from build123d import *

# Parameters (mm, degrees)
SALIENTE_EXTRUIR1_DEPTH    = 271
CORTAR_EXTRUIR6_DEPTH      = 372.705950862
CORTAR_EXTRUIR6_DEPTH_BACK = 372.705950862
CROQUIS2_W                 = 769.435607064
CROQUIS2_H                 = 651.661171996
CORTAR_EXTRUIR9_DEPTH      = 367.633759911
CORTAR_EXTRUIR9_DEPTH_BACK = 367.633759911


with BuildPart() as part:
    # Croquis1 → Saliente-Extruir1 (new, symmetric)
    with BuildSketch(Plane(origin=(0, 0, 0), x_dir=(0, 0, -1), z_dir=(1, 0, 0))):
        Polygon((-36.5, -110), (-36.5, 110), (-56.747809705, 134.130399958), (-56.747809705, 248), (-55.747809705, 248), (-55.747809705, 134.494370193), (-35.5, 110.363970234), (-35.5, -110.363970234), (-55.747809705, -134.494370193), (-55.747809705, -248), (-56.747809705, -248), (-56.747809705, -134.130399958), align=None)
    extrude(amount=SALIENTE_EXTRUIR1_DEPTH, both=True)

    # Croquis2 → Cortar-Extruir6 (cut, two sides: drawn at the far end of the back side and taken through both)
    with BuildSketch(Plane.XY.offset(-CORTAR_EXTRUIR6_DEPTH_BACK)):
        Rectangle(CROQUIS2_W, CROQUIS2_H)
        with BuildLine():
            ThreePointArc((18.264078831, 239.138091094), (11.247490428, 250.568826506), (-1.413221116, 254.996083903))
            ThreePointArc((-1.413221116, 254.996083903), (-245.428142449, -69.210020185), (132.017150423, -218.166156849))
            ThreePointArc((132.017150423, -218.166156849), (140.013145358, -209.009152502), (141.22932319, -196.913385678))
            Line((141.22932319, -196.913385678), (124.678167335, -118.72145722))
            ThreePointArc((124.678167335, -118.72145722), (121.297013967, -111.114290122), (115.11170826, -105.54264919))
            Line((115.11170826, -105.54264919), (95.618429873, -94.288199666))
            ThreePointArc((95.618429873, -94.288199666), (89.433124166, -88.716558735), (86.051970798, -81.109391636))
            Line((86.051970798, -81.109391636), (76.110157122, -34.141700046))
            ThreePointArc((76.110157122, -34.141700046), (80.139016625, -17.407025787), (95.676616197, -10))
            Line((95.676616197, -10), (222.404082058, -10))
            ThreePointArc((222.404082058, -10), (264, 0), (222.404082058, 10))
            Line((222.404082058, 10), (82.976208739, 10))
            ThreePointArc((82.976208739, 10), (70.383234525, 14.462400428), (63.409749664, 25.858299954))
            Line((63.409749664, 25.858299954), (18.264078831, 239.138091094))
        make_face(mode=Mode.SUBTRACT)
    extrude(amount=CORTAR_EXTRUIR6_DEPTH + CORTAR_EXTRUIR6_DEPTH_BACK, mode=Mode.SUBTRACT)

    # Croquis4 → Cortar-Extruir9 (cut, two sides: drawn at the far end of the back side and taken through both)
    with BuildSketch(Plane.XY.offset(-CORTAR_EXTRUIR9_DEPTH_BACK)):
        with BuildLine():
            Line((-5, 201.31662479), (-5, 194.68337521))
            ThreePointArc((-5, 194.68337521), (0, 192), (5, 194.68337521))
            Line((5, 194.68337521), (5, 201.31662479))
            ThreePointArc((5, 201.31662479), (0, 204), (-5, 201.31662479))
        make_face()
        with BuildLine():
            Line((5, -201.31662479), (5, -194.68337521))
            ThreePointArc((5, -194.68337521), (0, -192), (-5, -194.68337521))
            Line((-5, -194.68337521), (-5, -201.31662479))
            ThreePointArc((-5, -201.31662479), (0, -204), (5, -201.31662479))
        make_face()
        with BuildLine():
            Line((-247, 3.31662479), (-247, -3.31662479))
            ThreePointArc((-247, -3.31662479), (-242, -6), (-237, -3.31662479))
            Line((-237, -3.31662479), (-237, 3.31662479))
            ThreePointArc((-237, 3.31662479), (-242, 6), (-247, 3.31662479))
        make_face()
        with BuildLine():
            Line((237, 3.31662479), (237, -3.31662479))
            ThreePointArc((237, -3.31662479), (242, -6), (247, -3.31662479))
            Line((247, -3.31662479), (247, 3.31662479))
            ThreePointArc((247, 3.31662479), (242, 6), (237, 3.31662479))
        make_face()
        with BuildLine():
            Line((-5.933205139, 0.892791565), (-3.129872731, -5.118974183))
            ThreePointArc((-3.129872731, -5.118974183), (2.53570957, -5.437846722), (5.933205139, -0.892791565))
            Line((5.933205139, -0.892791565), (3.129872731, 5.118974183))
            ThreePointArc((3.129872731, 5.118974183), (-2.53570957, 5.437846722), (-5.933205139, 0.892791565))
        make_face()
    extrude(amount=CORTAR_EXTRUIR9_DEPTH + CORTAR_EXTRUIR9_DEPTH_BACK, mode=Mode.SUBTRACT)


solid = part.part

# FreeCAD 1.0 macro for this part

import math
import FreeCAD as App
import Part
import Sketcher
Q = App.Units.Quantity

doc = App.newDocument("Part")
body = doc.addObject("PartDesign::Body", "Body")

sketch1 = body.newObject("Sketcher::SketchObject", "Sketch")
sketch1.AttachmentSupport = (doc.getObject("YZ_Plane"), [""])
sketch1.MapMode = "FlatFace"
sketch1.addGeometry(Part.LineSegment(App.Vector(110, 36.5, 0), App.Vector(-110, 36.5, 0)), False)
sketch1.addGeometry(Part.LineSegment(App.Vector(-110, 36.5, 0), App.Vector(-134.1304, 56.74781, 0)), False)
sketch1.addGeometry(Part.LineSegment(App.Vector(-134.1304, 56.74781, 0), App.Vector(-248, 56.74781, 0)), False)
sketch1.addGeometry(Part.LineSegment(App.Vector(-248, 56.74781, 0), App.Vector(-248, 55.74781, 0)), False)
sketch1.addGeometry(Part.LineSegment(App.Vector(-248, 55.74781, 0), App.Vector(-134.49437, 55.74781, 0)), False)
sketch1.addGeometry(Part.LineSegment(App.Vector(-134.49437, 55.74781, 0), App.Vector(-110.36397, 35.5, 0)), False)
sketch1.addGeometry(Part.LineSegment(App.Vector(-110.36397, 35.5, 0), App.Vector(110.36397, 35.5, 0)), False)
sketch1.addGeometry(Part.LineSegment(App.Vector(110.36397, 35.5, 0), App.Vector(134.49437, 55.74781, 0)), False)
sketch1.addGeometry(Part.LineSegment(App.Vector(134.49437, 55.74781, 0), App.Vector(248, 55.74781, 0)), False)
sketch1.addGeometry(Part.LineSegment(App.Vector(248, 55.74781, 0), App.Vector(248, 56.74781, 0)), False)
sketch1.addGeometry(Part.LineSegment(App.Vector(248, 56.74781, 0), App.Vector(134.1304, 56.74781, 0)), False)
sketch1.addGeometry(Part.LineSegment(App.Vector(134.1304, 56.74781, 0), App.Vector(110, 36.5, 0)), False)
sketch1.addConstraint(Sketcher.Constraint("Coincident", 0, 2, 1, 1))
sketch1.addConstraint(Sketcher.Constraint("Coincident", 1, 2, 2, 1))
sketch1.addConstraint(Sketcher.Constraint("Coincident", 2, 2, 3, 1))
sketch1.addConstraint(Sketcher.Constraint("Coincident", 3, 2, 4, 1))
sketch1.addConstraint(Sketcher.Constraint("Coincident", 4, 2, 5, 1))
sketch1.addConstraint(Sketcher.Constraint("Coincident", 5, 2, 6, 1))
sketch1.addConstraint(Sketcher.Constraint("Coincident", 6, 2, 7, 1))
sketch1.addConstraint(Sketcher.Constraint("Coincident", 7, 2, 8, 1))
sketch1.addConstraint(Sketcher.Constraint("Coincident", 8, 2, 9, 1))
sketch1.addConstraint(Sketcher.Constraint("Coincident", 9, 2, 10, 1))
sketch1.addConstraint(Sketcher.Constraint("Coincident", 10, 2, 11, 1))
sketch1.addConstraint(Sketcher.Constraint("Coincident", 11, 2, 0, 1))
sketch1.addConstraint(Sketcher.Constraint("Horizontal", 0))
sketch1.addConstraint(Sketcher.Constraint("Horizontal", 2))
sketch1.addConstraint(Sketcher.Constraint("Vertical", 3))
sketch1.addConstraint(Sketcher.Constraint("Horizontal", 4))
sketch1.addConstraint(Sketcher.Constraint("Horizontal", 6))
sketch1.addConstraint(Sketcher.Constraint("Horizontal", 8))
sketch1.addConstraint(Sketcher.Constraint("Vertical", 9))
sketch1.addConstraint(Sketcher.Constraint("Horizontal", 10))
sketch1.addConstraint(Sketcher.Constraint("Symmetric", 4, 2, 7, 2, -2))
sketch1.addConstraint(Sketcher.Constraint("Symmetric", 2, 2, 9, 2, -2))
sketch1.addConstraint(Sketcher.Constraint("Parallel", 1, 5))
sketch1.addConstraint(Sketcher.Constraint("Parallel", 7, 11))
sketch1.addConstraint(Sketcher.Constraint("Equal", 2, 10))
sketch1.addConstraint(Sketcher.Constraint("Equal", 1, 5))
sketch1.addConstraint(Sketcher.Constraint("Equal", 5, 7))
sketch1.addConstraint(Sketcher.Constraint("DistanceX", 0, 2, 0, 1, 220.0))
sketch1.addConstraint(Sketcher.Constraint("DistanceY", 3, 2, 3, 1, 1.0))
sketch1.addConstraint(Sketcher.Constraint("Angle", 1, Q("140 deg")))
sketch1.addConstraint(Sketcher.Constraint("DistanceX", 2, 2, -1, 1, 248.0))
sketch1.addConstraint(Sketcher.Constraint("Distance", 1, 31.5))
sketch1.addConstraint(Sketcher.Constraint("DistanceY", -1, 1, 0, 2, 36.5))
sketch1.addConstraint(Sketcher.Constraint("DistanceX", 4, 1, 4, 2, 113.50563))
pad1 = body.newObject("PartDesign::Pad", "Pad")
pad1.Profile = sketch1
pad1.Length = 542
pad1.Midplane = True

sketch2 = body.newObject("Sketcher::SketchObject", "Sketch001")
sketch2.AttachmentSupport = (doc.getObject("XY_Plane"), [""])
sketch2.MapMode = "FlatFace"
sketch2.addGeometry(Part.LineSegment(App.Vector(-384.717804, 325.830586, 0), App.Vector(-384.717804, -325.830586, 0)), False)
sketch2.addGeometry(Part.LineSegment(App.Vector(-384.717804, -325.830586, 0), App.Vector(384.717804, -325.830586, 0)), False)
sketch2.addGeometry(Part.LineSegment(App.Vector(384.717804, -325.830586, 0), App.Vector(384.717804, 325.830586, 0)), False)
sketch2.addGeometry(Part.LineSegment(App.Vector(384.717804, 325.830586, 0), App.Vector(-384.717804, 325.830586, 0)), False)
sketch2.addGeometry(Part.ArcOfCircle(Part.Circle(App.Vector(-1.30238, 234.996391, 0), App.Vector(0, 0, 1), 20), math.radians(11.95158), math.radians(90.317537)), False)
sketch2.addGeometry(Part.LineSegment(App.Vector(18.264079, 239.138091, 0), App.Vector(63.40975, 25.8583, 0)), False)
sketch2.addGeometry(Part.ArcOfCircle(Part.Circle(App.Vector(82.976209, 30, 0), App.Vector(0, 0, 1), 20), math.radians(-168.04842), math.radians(-90)), False)
sketch2.addGeometry(Part.LineSegment(App.Vector(82.976209, 10, 0), App.Vector(222.404082, 10, 0)), False)
sketch2.addGeometry(Part.ArcOfCircle(Part.Circle(App.Vector(242, 0, 0), App.Vector(0, 0, 1), 22), math.radians(-152.964308), math.radians(152.964308)), False)
sketch2.addGeometry(Part.LineSegment(App.Vector(222.404082, -10, 0), App.Vector(95.676616, -10, 0)), False)
sketch2.addGeometry(Part.ArcOfCircle(Part.Circle(App.Vector(95.676616, -30, 0), App.Vector(0, 0, 1), 20), math.radians(90), math.radians(191.95158)), False)
sketch2.addGeometry(Part.LineSegment(App.Vector(76.110157, -34.1417, 0), App.Vector(86.051971, -81.109392, 0)), False)
sketch2.addGeometry(Part.ArcOfCircle(Part.Circle(App.Vector(105.61843, -76.967692, 0), App.Vector(0, 0, 1), 20), math.radians(-168.04842), math.radians(-120)), False)
sketch2.addGeometry(Part.LineSegment(App.Vector(95.61843, -94.2882, 0), App.Vector(115.111708, -105.542649, 0)), False)
sketch2.addGeometry(Part.ArcOfCircle(Part.Circle(App.Vector(105.111708, -122.863157, 0), App.Vector(0, 0, 1), 20), math.radians(11.95158), math.radians(60)), False)
sketch2.addGeometry(Part.LineSegment(App.Vector(124.678167, -118.721457, 0), App.Vector(141.229323, -196.913386, 0)), False)
sketch2.addGeometry(Part.ArcOfCircle(Part.Circle(App.Vector(121.662864, -201.055086, 0), App.Vector(0, 0, 1), 20), math.radians(-58.820943), math.radians(11.95158)), False)
sketch2.addGeometry(Part.ArcOfCircle(Part.Circle(App.Vector(0, 0, 0), App.Vector(0, 0, 1), 255), math.radians(90.317537), math.radians(301.179057)), False)
sketch2.addConstraint(Sketcher.Constraint("Coincident", 0, 2, 1, 1))
sketch2.addConstraint(Sketcher.Constraint("Coincident", 1, 2, 2, 1))
sketch2.addConstraint(Sketcher.Constraint("Coincident", 2, 2, 3, 1))
sketch2.addConstraint(Sketcher.Constraint("Coincident", 3, 2, 0, 1))
sketch2.addConstraint(Sketcher.Constraint("Tangent", 4, 1, 5, 1))
sketch2.addConstraint(Sketcher.Constraint("Tangent", 5, 2, 6, 1))
sketch2.addConstraint(Sketcher.Constraint("Tangent", 6, 2, 7, 1))
sketch2.addConstraint(Sketcher.Constraint("Coincident", 7, 2, 8, 2))
sketch2.addConstraint(Sketcher.Constraint("Coincident", 8, 1, 9, 1))
sketch2.addConstraint(Sketcher.Constraint("Tangent", 9, 2, 10, 1))
sketch2.addConstraint(Sketcher.Constraint("Tangent", 10, 2, 11, 1))
sketch2.addConstraint(Sketcher.Constraint("Tangent", 11, 2, 12, 1))
sketch2.addConstraint(Sketcher.Constraint("Tangent", 12, 2, 13, 1))
sketch2.addConstraint(Sketcher.Constraint("Tangent", 13, 2, 14, 2))
sketch2.addConstraint(Sketcher.Constraint("Tangent", 14, 1, 15, 1))
sketch2.addConstraint(Sketcher.Constraint("Tangent", 15, 2, 16, 2))
sketch2.addConstraint(Sketcher.Constraint("Tangent", 16, 1, 17, 2))
sketch2.addConstraint(Sketcher.Constraint("Tangent", 17, 1, 4, 2))
sketch2.addConstraint(Sketcher.Constraint("Vertical", 0))
sketch2.addConstraint(Sketcher.Constraint("Horizontal", 1))
sketch2.addConstraint(Sketcher.Constraint("Vertical", 2))
sketch2.addConstraint(Sketcher.Constraint("Horizontal", 3))
sketch2.addConstraint(Sketcher.Constraint("Horizontal", 7))
sketch2.addConstraint(Sketcher.Constraint("Horizontal", 9))
sketch2.addConstraint(Sketcher.Constraint("Coincident", 17, 3, -1, 1))
sketch2.addConstraint(Sketcher.Constraint("Equal", 4, 6))
sketch2.addConstraint(Sketcher.Constraint("Equal", 6, 10))
sketch2.addConstraint(Sketcher.Constraint("Equal", 10, 12))
sketch2.addConstraint(Sketcher.Constraint("Equal", 12, 14))
sketch2.addConstraint(Sketcher.Constraint("Equal", 14, 16))
sketch2.addConstraint(Sketcher.Constraint("Symmetric", 0, 2, 2, 2, -1, 1))
sketch2.addConstraint(Sketcher.Constraint("Symmetric", 7, 2, 8, 1, -1))
sketch2.addConstraint(Sketcher.Constraint("Parallel", 5, 11))
sketch2.addConstraint(Sketcher.Constraint("Parallel", 11, 15))
sketch2.addConstraint(Sketcher.Constraint("Radius", 4, 20.0))
sketch2.addConstraint(Sketcher.Constraint("Radius", 8, 22.0))
sketch2.addConstraint(Sketcher.Constraint("Radius", 17, 255.0))
sketch2.addConstraint(Sketcher.Constraint("Angle", 13, Q("-30 deg")))
sketch2.addConstraint(Sketcher.Constraint("DistanceY", -1, 1, 6, 3, 30.0))
sketch2.addConstraint(Sketcher.Constraint("DistanceX", -1, 1, 8, 3, 242.0))
sketch2.addConstraint(Sketcher.Constraint("DistanceY", 16, 1, 14, 3, 95.303))
sketch2.addConstraint(Sketcher.Constraint("Distance", 13, 22.508899))
sketch2.addConstraint(Sketcher.Constraint("DistanceY", 0, 2, 0, 1, 651.661172))
sketch2.addConstraint(Sketcher.Constraint("DistanceY", -1, 1, 5, 2, 25.8583))
sketch2.addConstraint(Sketcher.Constraint("DistanceY", 12, 2, -1, 1, 94.2882))
sketch2.addConstraint(Sketcher.Constraint("DistanceX", 6, 3, 14, 3, 22.1355))
sketch2.addConstraint(Sketcher.Constraint("DistanceX", 1, 1, 1, 2, 769.435607))
pocket1 = body.newObject("PartDesign::Pocket", "Pocket")
pocket1.Profile = sketch2
pocket1.Type = "ThroughAll"
pocket1.Midplane = True

sketch3 = body.newObject("Sketcher::SketchObject", "Sketch002")
sketch3.AttachmentSupport = (doc.getObject("XY_Plane"), [""])
sketch3.MapMode = "FlatFace"
sketch3.addGeometry(Part.LineSegment(App.Vector(-5, 201.316625, 0), App.Vector(-5, 194.683375, 0)), False)
sketch3.addGeometry(Part.ArcOfCircle(Part.Circle(App.Vector(0, 198, 0), App.Vector(0, 0, 1), 6), math.radians(-146.44269), math.radians(-33.55731)), False)
sketch3.addGeometry(Part.LineSegment(App.Vector(5, 194.683375, 0), App.Vector(5, 201.316625, 0)), False)
sketch3.addGeometry(Part.ArcOfCircle(Part.Circle(App.Vector(0, 198, 0), App.Vector(0, 0, 1), 6), math.radians(33.55731), math.radians(146.44269)), False)
sketch3.addGeometry(Part.LineSegment(App.Vector(5, -201.316625, 0), App.Vector(5, -194.683375, 0)), False)
sketch3.addGeometry(Part.ArcOfCircle(Part.Circle(App.Vector(0, -198, 0), App.Vector(0, 0, 1), 6), math.radians(33.55731), math.radians(146.44269)), False)
sketch3.addGeometry(Part.LineSegment(App.Vector(-5, -194.683375, 0), App.Vector(-5, -201.316625, 0)), False)
sketch3.addGeometry(Part.ArcOfCircle(Part.Circle(App.Vector(0, -198, 0), App.Vector(0, 0, 1), 6), math.radians(-146.44269), math.radians(-33.55731)), False)
sketch3.addGeometry(Part.LineSegment(App.Vector(-247, 3.316625, 0), App.Vector(-247, -3.316625, 0)), False)
sketch3.addGeometry(Part.ArcOfCircle(Part.Circle(App.Vector(-242, 0, 0), App.Vector(0, 0, 1), 6), math.radians(-146.44269), math.radians(-33.55731)), False)
sketch3.addGeometry(Part.LineSegment(App.Vector(-237, -3.316625, 0), App.Vector(-237, 3.316625, 0)), False)
sketch3.addGeometry(Part.ArcOfCircle(Part.Circle(App.Vector(-242, 0, 0), App.Vector(0, 0, 1), 6), math.radians(33.55731), math.radians(146.44269)), False)
sketch3.addGeometry(Part.LineSegment(App.Vector(237, 3.316625, 0), App.Vector(237, -3.316625, 0)), False)
sketch3.addGeometry(Part.ArcOfCircle(Part.Circle(App.Vector(242, 0, 0), App.Vector(0, 0, 1), 6), math.radians(-146.44269), math.radians(-33.55731)), False)
sketch3.addGeometry(Part.LineSegment(App.Vector(247, -3.316625, 0), App.Vector(247, 3.316625, 0)), False)
sketch3.addGeometry(Part.ArcOfCircle(Part.Circle(App.Vector(242, 0, 0), App.Vector(0, 0, 1), 6), math.radians(33.55731), math.radians(146.44269)), False)
sketch3.addGeometry(Part.LineSegment(App.Vector(-5.933205, 0.892792, 0), App.Vector(-3.129873, -5.118974, 0)), False)
sketch3.addGeometry(Part.ArcOfCircle(Part.Circle(App.Vector(0, 0, 0), App.Vector(0, 0, 1), 6), math.radians(-121.44269), math.radians(-8.55731)), False)
sketch3.addGeometry(Part.LineSegment(App.Vector(5.933205, -0.892792, 0), App.Vector(3.129873, 5.118974, 0)), False)
sketch3.addGeometry(Part.ArcOfCircle(Part.Circle(App.Vector(0, 0, 0), App.Vector(0, 0, 1), 6), math.radians(58.55731), math.radians(171.44269)), False)
sketch3.addConstraint(Sketcher.Constraint("Coincident", 0, 2, 1, 1))
sketch3.addConstraint(Sketcher.Constraint("Coincident", 1, 2, 2, 1))
sketch3.addConstraint(Sketcher.Constraint("Coincident", 2, 2, 3, 1))
sketch3.addConstraint(Sketcher.Constraint("Coincident", 3, 2, 0, 1))
sketch3.addConstraint(Sketcher.Constraint("Coincident", 4, 2, 5, 1))
sketch3.addConstraint(Sketcher.Constraint("Coincident", 5, 2, 6, 1))
sketch3.addConstraint(Sketcher.Constraint("Coincident", 6, 2, 7, 1))
sketch3.addConstraint(Sketcher.Constraint("Coincident", 7, 2, 4, 1))
sketch3.addConstraint(Sketcher.Constraint("Coincident", 8, 2, 9, 1))
sketch3.addConstraint(Sketcher.Constraint("Coincident", 9, 2, 10, 1))
sketch3.addConstraint(Sketcher.Constraint("Coincident", 10, 2, 11, 1))
sketch3.addConstraint(Sketcher.Constraint("Coincident", 11, 2, 8, 1))
sketch3.addConstraint(Sketcher.Constraint("Coincident", 12, 2, 13, 1))
sketch3.addConstraint(Sketcher.Constraint("Coincident", 13, 2, 14, 1))
sketch3.addConstraint(Sketcher.Constraint("Coincident", 14, 2, 15, 1))
sketch3.addConstraint(Sketcher.Constraint("Coincident", 15, 2, 12, 1))
sketch3.addConstraint(Sketcher.Constraint("Coincident", 16, 2, 17, 1))
sketch3.addConstraint(Sketcher.Constraint("Coincident", 17, 2, 18, 1))
sketch3.addConstraint(Sketcher.Constraint("Coincident", 18, 2, 19, 1))
sketch3.addConstraint(Sketcher.Constraint("Coincident", 19, 2, 16, 1))
sketch3.addConstraint(Sketcher.Constraint("Vertical", 0))
sketch3.addConstraint(Sketcher.Constraint("Vertical", 2))
sketch3.addConstraint(Sketcher.Constraint("Vertical", 4))
sketch3.addConstraint(Sketcher.Constraint("Vertical", 6))
sketch3.addConstraint(Sketcher.Constraint("Vertical", 8))
sketch3.addConstraint(Sketcher.Constraint("Vertical", 10))
sketch3.addConstraint(Sketcher.Constraint("Vertical", 12))
sketch3.addConstraint(Sketcher.Constraint("Vertical", 14))
sketch3.addConstraint(Sketcher.Constraint("Coincident", 17, 3, -1, 1))
sketch3.addConstraint(Sketcher.Constraint("Coincident", 19, 3, -1, 1))
sketch3.addConstraint(Sketcher.Constraint("Coincident", 3, 3, 1, 3))
sketch3.addConstraint(Sketcher.Constraint("Coincident", 7, 3, 5, 3))
sketch3.addConstraint(Sketcher.Constraint("Coincident", 11, 3, 9, 3))
sketch3.addConstraint(Sketcher.Constraint("Coincident", 15, 3, 13, 3))
sketch3.addConstraint(Sketcher.Constraint("Equal", 1, 3))
sketch3.addConstraint(Sketcher.Constraint("Equal", 3, 5))
sketch3.addConstraint(Sketcher.Constraint("Equal", 5, 7))
sketch3.addConstraint(Sketcher.Constraint("Equal", 7, 9))
sketch3.addConstraint(Sketcher.Constraint("Equal", 9, 11))
sketch3.addConstraint(Sketcher.Constraint("Equal", 11, 13))
sketch3.addConstraint(Sketcher.Constraint("Equal", 13, 15))
sketch3.addConstraint(Sketcher.Constraint("Equal", 15, 17))
sketch3.addConstraint(Sketcher.Constraint("Equal", 17, 19))
sketch3.addConstraint(Sketcher.Constraint("Symmetric", 1, 3, 5, 3, -1, 1))
sketch3.addConstraint(Sketcher.Constraint("Symmetric", 9, 3, 13, 3, -1, 1))
sketch3.addConstraint(Sketcher.Constraint("Symmetric", 0, 2, 1, 2, -2))
sketch3.addConstraint(Sketcher.Constraint("Symmetric", 9, 2, 12, 2, -2))
sketch3.addConstraint(Sketcher.Constraint("Parallel", 16, 18))
sketch3.addConstraint(Sketcher.Constraint("Horizontal", 4, 2, 5, 2))
sketch3.addConstraint(Sketcher.Constraint("Horizontal", 8, 2, 9, 2))
sketch3.addConstraint(Sketcher.Constraint("Horizontal", 12, 2, 13, 2))
sketch3.addConstraint(Sketcher.Constraint("Vertical", 2, 2, 4, 2))
sketch3.addConstraint(Sketcher.Constraint("Equal", 6, 8))
sketch3.addConstraint(Sketcher.Constraint("Equal", 16, 18))
sketch3.addConstraint(Sketcher.Constraint("Radius", 1, 6.0))
sketch3.addConstraint(Sketcher.Constraint("Angle", 16, Q("-65 deg")))
sketch3.addConstraint(Sketcher.Constraint("DistanceY", -1, 1, 1, 3, 198.0))
sketch3.addConstraint(Sketcher.Constraint("DistanceX", 9, 3, -1, 1, 242.0))
sketch3.addConstraint(Sketcher.Constraint("DistanceX", 0, 2, -1, 1, 5.0))
sketch3.addConstraint(Sketcher.Constraint("DistanceY", 5, 2, 16, 2, 189.564401))
pocket2 = body.newObject("PartDesign::Pocket", "Pocket001")
pocket2.Profile = sketch3
pocket2.Type = "ThroughAll"
pocket2.Midplane = True

doc.recompute()
